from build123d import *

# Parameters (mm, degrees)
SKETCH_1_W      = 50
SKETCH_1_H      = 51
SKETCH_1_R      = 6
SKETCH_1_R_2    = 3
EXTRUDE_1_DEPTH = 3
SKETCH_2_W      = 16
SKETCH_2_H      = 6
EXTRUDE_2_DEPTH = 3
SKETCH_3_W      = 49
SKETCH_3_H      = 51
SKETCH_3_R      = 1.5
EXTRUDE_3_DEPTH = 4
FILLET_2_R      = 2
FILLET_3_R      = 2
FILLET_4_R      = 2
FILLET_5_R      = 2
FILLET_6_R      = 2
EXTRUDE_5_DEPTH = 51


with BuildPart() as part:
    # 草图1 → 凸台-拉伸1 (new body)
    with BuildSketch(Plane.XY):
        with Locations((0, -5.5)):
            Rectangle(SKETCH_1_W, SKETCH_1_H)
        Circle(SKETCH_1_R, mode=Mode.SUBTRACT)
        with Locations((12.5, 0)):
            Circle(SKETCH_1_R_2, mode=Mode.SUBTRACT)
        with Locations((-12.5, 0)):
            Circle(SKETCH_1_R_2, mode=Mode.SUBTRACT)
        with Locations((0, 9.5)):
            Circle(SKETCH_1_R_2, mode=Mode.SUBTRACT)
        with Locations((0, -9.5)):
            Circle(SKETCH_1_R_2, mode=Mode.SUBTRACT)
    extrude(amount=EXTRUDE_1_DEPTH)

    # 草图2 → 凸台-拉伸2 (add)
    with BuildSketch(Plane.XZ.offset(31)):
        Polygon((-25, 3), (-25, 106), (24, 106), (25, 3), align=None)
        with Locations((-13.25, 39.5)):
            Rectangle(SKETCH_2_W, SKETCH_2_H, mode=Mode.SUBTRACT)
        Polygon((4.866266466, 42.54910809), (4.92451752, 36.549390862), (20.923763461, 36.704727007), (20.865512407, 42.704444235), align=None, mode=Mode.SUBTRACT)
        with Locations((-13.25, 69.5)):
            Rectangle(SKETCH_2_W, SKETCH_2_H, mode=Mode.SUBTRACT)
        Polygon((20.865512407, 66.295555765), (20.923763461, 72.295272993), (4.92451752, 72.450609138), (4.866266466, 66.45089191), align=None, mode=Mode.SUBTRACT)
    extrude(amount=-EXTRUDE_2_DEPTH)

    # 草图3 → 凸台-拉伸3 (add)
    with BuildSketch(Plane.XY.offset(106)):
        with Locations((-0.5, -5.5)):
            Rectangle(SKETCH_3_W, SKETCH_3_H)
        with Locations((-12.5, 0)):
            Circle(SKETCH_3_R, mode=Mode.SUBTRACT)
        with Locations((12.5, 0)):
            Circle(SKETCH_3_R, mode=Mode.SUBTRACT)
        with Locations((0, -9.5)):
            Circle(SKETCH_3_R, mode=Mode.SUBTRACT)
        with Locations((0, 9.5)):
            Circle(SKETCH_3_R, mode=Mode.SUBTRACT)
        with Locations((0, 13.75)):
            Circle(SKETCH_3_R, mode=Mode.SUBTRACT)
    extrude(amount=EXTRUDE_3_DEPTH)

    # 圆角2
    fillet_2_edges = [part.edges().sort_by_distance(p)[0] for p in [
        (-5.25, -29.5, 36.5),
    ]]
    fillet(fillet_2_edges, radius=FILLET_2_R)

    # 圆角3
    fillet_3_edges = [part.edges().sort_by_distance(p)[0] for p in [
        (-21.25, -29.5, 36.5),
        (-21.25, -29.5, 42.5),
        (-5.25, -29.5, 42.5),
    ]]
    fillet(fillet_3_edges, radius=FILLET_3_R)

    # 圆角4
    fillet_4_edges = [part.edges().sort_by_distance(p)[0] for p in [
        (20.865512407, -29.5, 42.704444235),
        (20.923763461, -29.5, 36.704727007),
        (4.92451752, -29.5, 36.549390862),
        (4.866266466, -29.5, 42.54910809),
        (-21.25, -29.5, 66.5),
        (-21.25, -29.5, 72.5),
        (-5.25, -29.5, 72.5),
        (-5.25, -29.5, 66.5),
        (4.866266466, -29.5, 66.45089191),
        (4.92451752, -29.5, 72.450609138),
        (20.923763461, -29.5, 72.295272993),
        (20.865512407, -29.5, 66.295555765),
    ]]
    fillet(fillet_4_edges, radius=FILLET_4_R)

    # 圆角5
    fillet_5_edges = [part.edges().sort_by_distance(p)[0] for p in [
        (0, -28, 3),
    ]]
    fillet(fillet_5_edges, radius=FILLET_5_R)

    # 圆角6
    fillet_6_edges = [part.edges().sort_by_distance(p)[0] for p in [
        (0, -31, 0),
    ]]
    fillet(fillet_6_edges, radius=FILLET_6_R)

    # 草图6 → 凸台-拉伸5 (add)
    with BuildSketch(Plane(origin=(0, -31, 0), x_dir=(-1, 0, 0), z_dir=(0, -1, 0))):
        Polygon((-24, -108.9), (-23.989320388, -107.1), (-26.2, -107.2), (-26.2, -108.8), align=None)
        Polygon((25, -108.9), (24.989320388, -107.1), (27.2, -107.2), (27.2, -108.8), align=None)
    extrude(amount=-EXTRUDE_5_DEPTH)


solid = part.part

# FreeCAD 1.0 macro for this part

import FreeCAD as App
import Part
import Sketcher

V = App.Vector
Q = App.Units.Quantity


def edges_at(feature, points):
    """Names of the edges that pass closest to the given points."""
    edges = feature.Shape.Edges
    near = lambda p: min(range(len(edges)), key=lambda i: edges[i].distToShape(Part.Vertex(*p))[0])
    return sorted({f"Edge{near(p) + 1}" for p in points})

doc = App.newDocument("Part")
body = doc.addObject("PartDesign::Body", "Body")

# Sketch on XY plane
sketch1 = doc.addObject("Sketcher::SketchObject", "Sketch")
body.addObject(sketch1)
sketch1.AttachmentSupport = (doc.XY_Plane, [""])
sketch1.MapMode = "FlatFace"
sketch1.addGeometry(Part.LineSegment(V(-25, 20, 0), V(-25, -31, 0)), False)
sketch1.addGeometry(Part.LineSegment(V(-25, -31, 0), V(25, -31, 0)), False)
sketch1.addGeometry(Part.LineSegment(V(25, -31, 0), V(25, 20, 0)), False)
sketch1.addGeometry(Part.LineSegment(V(25, 20, 0), V(-25, 20, 0)), False)
sketch1.addGeometry(Part.Circle(V(0, -9.5, 0), V(0, 0, 1), 3), False)
sketch1.addGeometry(Part.Circle(V(-12.5, 0, 0), V(0, 0, 1), 3), False)
sketch1.addGeometry(Part.Circle(V(0, 0, 0), V(0, 0, 1), 6), False)
sketch1.addGeometry(Part.Circle(V(12.5, 0, 0), V(0, 0, 1), 3), False)
sketch1.addGeometry(Part.Circle(V(0, 9.5, 0), V(0, 0, 1), 3), False)
sketch1.addConstraint(Sketcher.Constraint("Coincident", 0, 2, 1, 1))
sketch1.addConstraint(Sketcher.Constraint("Coincident", 1, 2, 2, 1))
sketch1.addConstraint(Sketcher.Constraint("Coincident", 2, 2, 3, 1))
sketch1.addConstraint(Sketcher.Constraint("Coincident", 3, 2, 0, 1))
sketch1.addConstraint(Sketcher.Constraint("Vertical", 0))
sketch1.addConstraint(Sketcher.Constraint("Horizontal", 1))
sketch1.addConstraint(Sketcher.Constraint("Vertical", 2))
sketch1.addConstraint(Sketcher.Constraint("Horizontal", 3))
sketch1.addConstraint(Sketcher.Constraint("Coincident", 6, 3, -1, 1))
sketch1.addConstraint(Sketcher.Constraint("Equal", 4, 5))
sketch1.addConstraint(Sketcher.Constraint("Equal", 5, 7))
sketch1.addConstraint(Sketcher.Constraint("Equal", 7, 8))
sketch1.addConstraint(Sketcher.Constraint("Symmetric", 5, 3, 7, 3, -1, 1))
sketch1.addConstraint(Sketcher.Constraint("Symmetric", 4, 3, 8, 3, -1, 1))
sketch1.addConstraint(Sketcher.Constraint("PointOnObject", 4, 3, -2))
sketch1.addConstraint(Sketcher.Constraint("PointOnObject", 5, 3, -1))
sketch1.addConstraint(Sketcher.Constraint("Diameter", 4, 6.0))
sketch1.addConstraint(Sketcher.Constraint("Diameter", 6, 12.0))
sketch1.addConstraint(Sketcher.Constraint("DistanceX", 1, 1, 1, 2, 50.0))
sketch1.addConstraint(Sketcher.Constraint("DistanceY", 0, 2, 0, 1, 51.0))
sketch1.addConstraint(Sketcher.Constraint("DistanceX", 0, 2, -1, 1, 25.0))
sketch1.addConstraint(Sketcher.Constraint("DistanceY", 0, 2, -1, 1, 31.0))
sketch1.addConstraint(Sketcher.Constraint("DistanceX", 5, 3, 7, 3, 25.0))
sketch1.addConstraint(Sketcher.Constraint("DistanceY", 4, 3, 8, 3, 19.0))
pad1 = doc.addObject("PartDesign::Pad", "Pad")
body.addObject(pad1)
pad1.Profile = sketch1
pad1.Length = 3

# Sketch on XZ plane
sketch2 = doc.addObject("Sketcher::SketchObject", "Sketch001")
body.addObject(sketch2)
sketch2.AttachmentSupport = (doc.XZ_Plane, [""])
sketch2.MapMode = "FlatFace"
sketch2.AttachmentOffset = App.Placement(V(0, 0, 31), App.Rotation())
sketch2.addGeometry(Part.LineSegment(V(-25, 106, 0), V(-25, 3, 0)), False)
sketch2.addGeometry(Part.LineSegment(V(-25, 3, 0), V(25, 3, 0)), False)
sketch2.addGeometry(Part.LineSegment(V(25, 3, 0), V(24, 106, 0)), False)
sketch2.addGeometry(Part.LineSegment(V(24, 106, 0), V(-25, 106, 0)), False)
sketch2.addGeometry(Part.LineSegment(V(5, 43, 0), V(21, 43, 0)), False)
sketch2.addGeometry(Part.LineSegment(V(21, 43, 0), V(21, 37, 0)), False)
sketch2.addGeometry(Part.LineSegment(V(21, 37, 0), V(5, 37, 0)), False)
sketch2.addGeometry(Part.LineSegment(V(5, 37, 0), V(5, 43, 0)), False)
sketch2.addGeometry(Part.LineSegment(V(-21, 36, 0), V(-21, 42, 0)), False)
sketch2.addGeometry(Part.LineSegment(V(-21, 42, 0), V(-5, 42, 0)), False)
sketch2.addGeometry(Part.LineSegment(V(-5, 42, 0), V(-5, 36, 0)), False)
sketch2.addGeometry(Part.LineSegment(V(-5, 36, 0), V(-21, 36, 0)), False)
sketch2.addGeometry(Part.LineSegment(V(21, 66, 0), V(5, 66, 0)), False)
sketch2.addGeometry(Part.LineSegment(V(5, 66, 0), V(5, 72, 0)), False)
sketch2.addGeometry(Part.LineSegment(V(5, 72, 0), V(21, 72, 0)), False)
sketch2.addGeometry(Part.LineSegment(V(21, 72, 0), V(21, 66, 0)), False)
sketch2.addGeometry(Part.LineSegment(V(-21, 66, 0), V(-21, 72, 0)), False)
sketch2.addGeometry(Part.LineSegment(V(-21, 72, 0), V(-5, 72, 0)), False)
sketch2.addGeometry(Part.LineSegment(V(-5, 72, 0), V(-5, 66, 0)), False)
sketch2.addGeometry(Part.LineSegment(V(-5, 66, 0), V(-21, 66, 0)), False)
sketch2.addConstraint(Sketcher.Constraint("Coincident", 0, 2, 1, 1))
sketch2.addConstraint(Sketcher.Constraint("Coincident", 1, 2, 2, 1))
sketch2.addConstraint(Sketcher.Constraint("Coincident", 2, 2, 3, 1))
sketch2.addConstraint(Sketcher.Constraint("Coincident", 3, 2, 0, 1))
sketch2.addConstraint(Sketcher.Constraint("Coincident", 4, 2, 5, 1))
sketch2.addConstraint(Sketcher.Constraint("Coincident", 5, 2, 6, 1))
sketch2.addConstraint(Sketcher.Constraint("Coincident", 6, 2, 7, 1))
sketch2.addConstraint(Sketcher.Constraint("Coincident", 7, 2, 4, 1))
sketch2.addConstraint(Sketcher.Constraint("Coincident", 8, 2, 9, 1))
sketch2.addConstraint(Sketcher.Constraint("Coincident", 9, 2, 10, 1))
sketch2.addConstraint(Sketcher.Constraint("Coincident", 10, 2, 11, 1))
sketch2.addConstraint(Sketcher.Constraint("Coincident", 11, 2, 8, 1))
sketch2.addConstraint(Sketcher.Constraint("Coincident", 12, 2, 13, 1))
sketch2.addConstraint(Sketcher.Constraint("Coincident", 13, 2, 14, 1))
sketch2.addConstraint(Sketcher.Constraint("Coincident", 14, 2, 15, 1))
sketch2.addConstraint(Sketcher.Constraint("Coincident", 15, 2, 12, 1))
sketch2.addConstraint(Sketcher.Constraint("Coincident", 16, 2, 17, 1))
sketch2.addConstraint(Sketcher.Constraint("Coincident", 17, 2, 18, 1))
sketch2.addConstraint(Sketcher.Constraint("Coincident", 18, 2, 19, 1))
sketch2.addConstraint(Sketcher.Constraint("Coincident", 19, 2, 16, 1))
sketch2.addConstraint(Sketcher.Constraint("Vertical", 0))
sketch2.addConstraint(Sketcher.Constraint("Horizontal", 1))
sketch2.addConstraint(Sketcher.Constraint("Horizontal", 3))
sketch2.addConstraint(Sketcher.Constraint("Vertical", 8))
sketch2.addConstraint(Sketcher.Constraint("Horizontal", 9))
sketch2.addConstraint(Sketcher.Constraint("Vertical", 10))
sketch2.addConstraint(Sketcher.Constraint("Horizontal", 11))
sketch2.addConstraint(Sketcher.Constraint("Vertical", 16))
sketch2.addConstraint(Sketcher.Constraint("Horizontal", 17))
sketch2.addConstraint(Sketcher.Constraint("Vertical", 18))
sketch2.addConstraint(Sketcher.Constraint("Horizontal", 19))
sketch2.addConstraint(Sketcher.Constraint("Perpendicular", 2, 4))
sketch2.addConstraint(Sketcher.Constraint("Perpendicular", 4, 5))
sketch2.addConstraint(Sketcher.Constraint("Perpendicular", 5, 6))
sketch2.addConstraint(Sketcher.Constraint("Perpendicular", 6, 7))
sketch2.addConstraint(Sketcher.Constraint("Perpendicular", 12, 13))
sketch2.addConstraint(Sketcher.Constraint("Perpendicular", 13, 14))
sketch2.addConstraint(Sketcher.Constraint("Perpendicular", 14, 15))
sketch2.addConstraint(Sketcher.Constraint("Vertical", 7, 2, 12, 2))
sketch2.addConstraint(Sketcher.Constraint("Vertical", 6, 2, 13, 2))
sketch2.addConstraint(Sketcher.Constraint("Vertical", 5, 2, 14, 2))
sketch2.addConstraint(Sketcher.Constraint("Vertical", 11, 2, 16, 2))
sketch2.addConstraint(Sketcher.Constraint("Vertical", 10, 2, 17, 2))
sketch2.addConstraint(Sketcher.Constraint("Equal", 10, 16))
sketch2.addConstraint(Sketcher.Constraint("Equal", 7, 13))
sketch2.addConstraint(Sketcher.Constraint("DistanceX", 1, 1, 1, 2, 50.0))
sketch2.addConstraint(Sketcher.Constraint("DistanceX", 3, 2, 3, 1, 49.0))
sketch2.addConstraint(Sketcher.Constraint("DistanceX", 9, 1, 9, 2, 16.0))
sketch2.addConstraint(Sketcher.Constraint("DistanceY", 0, 2, 0, 1, 103.0))
sketch2.addConstraint(Sketcher.Constraint("DistanceY", 8, 1, 8, 2, 6.0))
sketch2.addConstraint(Sketcher.Constraint("Distance", 4, 16.0))
sketch2.addConstraint(Sketcher.Constraint("Distance", 5, 6.0))
sketch2.addConstraint(Sketcher.Constraint("DistanceX", 0, 2, -1, 1, 25.0))
sketch2.addConstraint(Sketcher.Constraint("DistanceY", -1, 1, 0, 2, 3.0))
sketch2.addConstraint(Sketcher.Constraint("DistanceY", 8, 2, 16, 2, 30.0))
sketch2.addConstraint(Sketcher.Constraint("DistanceY", -1, 1, 8, 2, 42.5))
sketch2.addConstraint(Sketcher.Constraint("DistanceX", 8, 2, -1, 1, 21.25))
sketch2.addConstraint(Sketcher.Constraint("DistanceY", 6, 2, 12, 2, 29.901501))
sketch2.addConstraint(Sketcher.Constraint("DistanceY", -1, 1, 6, 2, 36.549391))
sketch2.addConstraint(Sketcher.Constraint("DistanceX", -1, 1, 4, 2, 20.865512))
pad2 = doc.addObject("PartDesign::Pad", "Pad001")
body.addObject(pad2)
pad2.Profile = sketch2
pad2.Length = 3
pad2.Reversed = True

# Sketch on XY plane
sketch3 = doc.addObject("Sketcher::SketchObject", "Sketch002")
body.addObject(sketch3)
sketch3.AttachmentSupport = (doc.XY_Plane, [""])
sketch3.MapMode = "FlatFace"
sketch3.AttachmentOffset = App.Placement(V(0, 0, 106), App.Rotation())
sketch3.addGeometry(Part.LineSegment(V(-25, 20, 0), V(-25, -31, 0)), False)
sketch3.addGeometry(Part.LineSegment(V(-25, -31, 0), V(24, -31, 0)), False)
sketch3.addGeometry(Part.LineSegment(V(24, -31, 0), V(24, 20, 0)), False)
sketch3.addGeometry(Part.LineSegment(V(24, 20, 0), V(-25, 20, 0)), False)
sketch3.addGeometry(Part.Circle(V(-12.5, 0, 0), V(0, 0, 1), 1.5), False)
sketch3.addGeometry(Part.Circle(V(0, -9.5, 0), V(0, 0, 1), 1.5), False)
sketch3.addGeometry(Part.Circle(V(12.5, 0, 0), V(0, 0, 1), 1.5), False)
sketch3.addGeometry(Part.Circle(V(0, 9.5, 0), V(0, 0, 1), 1.5), False)
sketch3.addGeometry(Part.Circle(V(0, 13.8, 0), V(0, 0, 1), 1.5), False)
sketch3.addConstraint(Sketcher.Constraint("Coincident", 0, 2, 1, 1))
sketch3.addConstraint(Sketcher.Constraint("Coincident", 1, 2, 2, 1))
sketch3.addConstraint(Sketcher.Constraint("Coincident", 2, 2, 3, 1))
sketch3.addConstraint(Sketcher.Constraint("Coincident", 3, 2, 0, 1))
sketch3.addConstraint(Sketcher.Constraint("Vertical", 0))
sketch3.addConstraint(Sketcher.Constraint("Horizontal", 1))
sketch3.addConstraint(Sketcher.Constraint("Vertical", 2))
sketch3.addConstraint(Sketcher.Constraint("Horizontal", 3))
sketch3.addConstraint(Sketcher.Constraint("Equal", 4, 5))
sketch3.addConstraint(Sketcher.Constraint("Equal", 5, 6))
sketch3.addConstraint(Sketcher.Constraint("Equal", 6, 7))
sketch3.addConstraint(Sketcher.Constraint("Equal", 7, 8))
sketch3.addConstraint(Sketcher.Constraint("Symmetric", 4, 3, 6, 3, -1, 1))
sketch3.addConstraint(Sketcher.Constraint("Symmetric", 5, 3, 7, 3, -1, 1))
sketch3.addConstraint(Sketcher.Constraint("PointOnObject", 4, 3, -1))
sketch3.addConstraint(Sketcher.Constraint("PointOnObject", 5, 3, -2))
sketch3.addConstraint(Sketcher.Constraint("PointOnObject", 8, 3, -2))
sketch3.addConstraint(Sketcher.Constraint("Diameter", 4, 3.0))
sketch3.addConstraint(Sketcher.Constraint("DistanceX", 1, 1, 1, 2, 49.0))
sketch3.addConstraint(Sketcher.Constraint("DistanceY", 0, 2, 0, 1, 51.0))
sketch3.addConstraint(Sketcher.Constraint("DistanceX", 0, 2, -1, 1, 25.0))
sketch3.addConstraint(Sketcher.Constraint("DistanceY", 0, 2, -1, 1, 31.0))
sketch3.addConstraint(Sketcher.Constraint("DistanceX", 4, 3, 6, 3, 25.0))
sketch3.addConstraint(Sketcher.Constraint("DistanceY", 5, 3, 7, 3, 19.0))
sketch3.addConstraint(Sketcher.Constraint("DistanceY", -1, 1, 8, 3, 13.75))
pad3 = doc.addObject("PartDesign::Pad", "Pad002")
body.addObject(pad3)
pad3.Profile = sketch3
pad3.Length = 4
doc.recompute()

fillet = doc.addObject("PartDesign::Fillet", "Fillet")
body.addObject(fillet)
fillet.Base = (pad3, edges_at(pad3, [(-5.25, -29.5, 36.5)]))
fillet.Radius = 2
doc.recompute()

fillet2 = doc.addObject("PartDesign::Fillet", "Fillet001")
body.addObject(fillet2)
fillet2.Base = (fillet, edges_at(fillet, [(-21.25, -29.5, 36.5), (-21.25, -29.5, 42.5), (-5.25, -29.5, 42.5)]))
fillet2.Radius = 2
doc.recompute()

fillet3 = doc.addObject("PartDesign::Fillet", "Fillet002")
body.addObject(fillet3)
fillet3.Base = (fillet2, edges_at(fillet2, [
    (20.866, -29.5, 42.704),
    (20.924, -29.5, 36.705),
    (4.925, -29.5, 36.549),
    (4.866, -29.5, 42.549),
    (-21.25, -29.5, 66.5),
    (-21.25, -29.5, 72.5),
    (-5.25, -29.5, 72.5),
    (-5.25, -29.5, 66.5),
    (4.866, -29.5, 66.451),
    (4.925, -29.5, 72.451),
    (20.924, -29.5, 72.295),
    (20.866, -29.5, 66.296),
]))
fillet3.Radius = 2
doc.recompute()

fillet4 = doc.addObject("PartDesign::Fillet", "Fillet003")
body.addObject(fillet4)
fillet4.Base = (fillet3, edges_at(fillet3, [(0, -28, 3)]))
fillet4.Radius = 2
doc.recompute()

fillet5 = doc.addObject("PartDesign::Fillet", "Fillet004")
body.addObject(fillet5)
fillet5.Base = (fillet4, edges_at(fillet4, [(0, -31, 0)]))
fillet5.Radius = 2

# Sketch on XZ plane
sketch4 = doc.addObject("Sketcher::SketchObject", "Sketch003")
body.addObject(sketch4)
sketch4.AttachmentSupport = (doc.XZ_Plane, [""])
sketch4.MapMode = "FlatFace"
sketch4.AttachmentOffset = App.Placement(V(0, 0, 31), App.Rotation())
sketch4.addGeometry(Part.LineSegment(V(24, 108.9, 0), V(23.98932, 107.1, 0)), False)
sketch4.addGeometry(Part.LineSegment(V(23.98932, 107.1, 0), V(26.2, 107.2, 0)), False)
sketch4.addGeometry(Part.LineSegment(V(26.2, 107.2, 0), V(26.2, 108.8, 0)), False)
sketch4.addGeometry(Part.LineSegment(V(26.2, 108.8, 0), V(24, 108.9, 0)), False)
sketch4.addGeometry(Part.LineSegment(V(-24.98932, 107.1, 0), V(-25, 108.9, 0)), False)
sketch4.addGeometry(Part.LineSegment(V(-25, 108.9, 0), V(-27.2, 108.8, 0)), False)
sketch4.addGeometry(Part.LineSegment(V(-27.2, 108.8, 0), V(-27.2, 107.2, 0)), False)
sketch4.addGeometry(Part.LineSegment(V(-27.2, 107.2, 0), V(-24.98932, 107.1, 0)), False)
sketch4.addConstraint(Sketcher.Constraint("Coincident", 0, 2, 1, 1))
sketch4.addConstraint(Sketcher.Constraint("Coincident", 1, 2, 2, 1))
sketch4.addConstraint(Sketcher.Constraint("Coincident", 2, 2, 3, 1))
sketch4.addConstraint(Sketcher.Constraint("Coincident", 3, 2, 0, 1))
sketch4.addConstraint(Sketcher.Constraint("Coincident", 4, 2, 5, 1))
sketch4.addConstraint(Sketcher.Constraint("Coincident", 5, 2, 6, 1))
sketch4.addConstraint(Sketcher.Constraint("Coincident", 6, 2, 7, 1))
sketch4.addConstraint(Sketcher.Constraint("Coincident", 7, 2, 4, 1))
sketch4.addConstraint(Sketcher.Constraint("Vertical", 2))
sketch4.addConstraint(Sketcher.Constraint("Vertical", 6))
sketch4.addConstraint(Sketcher.Constraint("Horizontal", 3, 2, 4, 2))
sketch4.addConstraint(Sketcher.Constraint("Horizontal", 2, 2, 5, 2))
sketch4.addConstraint(Sketcher.Constraint("Horizontal", 1, 2, 6, 2))
sketch4.addConstraint(Sketcher.Constraint("Horizontal", 0, 2, 7, 2))
sketch4.addConstraint(Sketcher.Constraint("Equal", 0, 4))
sketch4.addConstraint(Sketcher.Constraint("Equal", 3, 5))
sketch4.addConstraint(Sketcher.Constraint("DistanceY", 2, 1, 2, 2, 1.6))
sketch4.addConstraint(Sketcher.Constraint("DistanceX", -1, 1, 3, 2, 24.0))
sketch4.addConstraint(Sketcher.Constraint("DistanceX", 4, 2, -1, 1, 25.0))
sketch4.addConstraint(Sketcher.Constraint("DistanceY", -1, 1, 0, 2, 107.1))
sketch4.addConstraint(Sketcher.Constraint("DistanceX", -1, 1, 1, 2, 26.2))
sketch4.addConstraint(Sketcher.Constraint("DistanceY", -1, 1, 1, 2, 107.2))
sketch4.addConstraint(Sketcher.Constraint("DistanceY", -1, 1, 3, 2, 108.9))
sketch4.addConstraint(Sketcher.Constraint("Angle", 1, Q("2.590007 deg")))
pad4 = doc.addObject("PartDesign::Pad", "Pad003")
body.addObject(pad4)
pad4.Profile = sketch4
pad4.Length = 51
pad4.Reversed = True

doc.recompute()
